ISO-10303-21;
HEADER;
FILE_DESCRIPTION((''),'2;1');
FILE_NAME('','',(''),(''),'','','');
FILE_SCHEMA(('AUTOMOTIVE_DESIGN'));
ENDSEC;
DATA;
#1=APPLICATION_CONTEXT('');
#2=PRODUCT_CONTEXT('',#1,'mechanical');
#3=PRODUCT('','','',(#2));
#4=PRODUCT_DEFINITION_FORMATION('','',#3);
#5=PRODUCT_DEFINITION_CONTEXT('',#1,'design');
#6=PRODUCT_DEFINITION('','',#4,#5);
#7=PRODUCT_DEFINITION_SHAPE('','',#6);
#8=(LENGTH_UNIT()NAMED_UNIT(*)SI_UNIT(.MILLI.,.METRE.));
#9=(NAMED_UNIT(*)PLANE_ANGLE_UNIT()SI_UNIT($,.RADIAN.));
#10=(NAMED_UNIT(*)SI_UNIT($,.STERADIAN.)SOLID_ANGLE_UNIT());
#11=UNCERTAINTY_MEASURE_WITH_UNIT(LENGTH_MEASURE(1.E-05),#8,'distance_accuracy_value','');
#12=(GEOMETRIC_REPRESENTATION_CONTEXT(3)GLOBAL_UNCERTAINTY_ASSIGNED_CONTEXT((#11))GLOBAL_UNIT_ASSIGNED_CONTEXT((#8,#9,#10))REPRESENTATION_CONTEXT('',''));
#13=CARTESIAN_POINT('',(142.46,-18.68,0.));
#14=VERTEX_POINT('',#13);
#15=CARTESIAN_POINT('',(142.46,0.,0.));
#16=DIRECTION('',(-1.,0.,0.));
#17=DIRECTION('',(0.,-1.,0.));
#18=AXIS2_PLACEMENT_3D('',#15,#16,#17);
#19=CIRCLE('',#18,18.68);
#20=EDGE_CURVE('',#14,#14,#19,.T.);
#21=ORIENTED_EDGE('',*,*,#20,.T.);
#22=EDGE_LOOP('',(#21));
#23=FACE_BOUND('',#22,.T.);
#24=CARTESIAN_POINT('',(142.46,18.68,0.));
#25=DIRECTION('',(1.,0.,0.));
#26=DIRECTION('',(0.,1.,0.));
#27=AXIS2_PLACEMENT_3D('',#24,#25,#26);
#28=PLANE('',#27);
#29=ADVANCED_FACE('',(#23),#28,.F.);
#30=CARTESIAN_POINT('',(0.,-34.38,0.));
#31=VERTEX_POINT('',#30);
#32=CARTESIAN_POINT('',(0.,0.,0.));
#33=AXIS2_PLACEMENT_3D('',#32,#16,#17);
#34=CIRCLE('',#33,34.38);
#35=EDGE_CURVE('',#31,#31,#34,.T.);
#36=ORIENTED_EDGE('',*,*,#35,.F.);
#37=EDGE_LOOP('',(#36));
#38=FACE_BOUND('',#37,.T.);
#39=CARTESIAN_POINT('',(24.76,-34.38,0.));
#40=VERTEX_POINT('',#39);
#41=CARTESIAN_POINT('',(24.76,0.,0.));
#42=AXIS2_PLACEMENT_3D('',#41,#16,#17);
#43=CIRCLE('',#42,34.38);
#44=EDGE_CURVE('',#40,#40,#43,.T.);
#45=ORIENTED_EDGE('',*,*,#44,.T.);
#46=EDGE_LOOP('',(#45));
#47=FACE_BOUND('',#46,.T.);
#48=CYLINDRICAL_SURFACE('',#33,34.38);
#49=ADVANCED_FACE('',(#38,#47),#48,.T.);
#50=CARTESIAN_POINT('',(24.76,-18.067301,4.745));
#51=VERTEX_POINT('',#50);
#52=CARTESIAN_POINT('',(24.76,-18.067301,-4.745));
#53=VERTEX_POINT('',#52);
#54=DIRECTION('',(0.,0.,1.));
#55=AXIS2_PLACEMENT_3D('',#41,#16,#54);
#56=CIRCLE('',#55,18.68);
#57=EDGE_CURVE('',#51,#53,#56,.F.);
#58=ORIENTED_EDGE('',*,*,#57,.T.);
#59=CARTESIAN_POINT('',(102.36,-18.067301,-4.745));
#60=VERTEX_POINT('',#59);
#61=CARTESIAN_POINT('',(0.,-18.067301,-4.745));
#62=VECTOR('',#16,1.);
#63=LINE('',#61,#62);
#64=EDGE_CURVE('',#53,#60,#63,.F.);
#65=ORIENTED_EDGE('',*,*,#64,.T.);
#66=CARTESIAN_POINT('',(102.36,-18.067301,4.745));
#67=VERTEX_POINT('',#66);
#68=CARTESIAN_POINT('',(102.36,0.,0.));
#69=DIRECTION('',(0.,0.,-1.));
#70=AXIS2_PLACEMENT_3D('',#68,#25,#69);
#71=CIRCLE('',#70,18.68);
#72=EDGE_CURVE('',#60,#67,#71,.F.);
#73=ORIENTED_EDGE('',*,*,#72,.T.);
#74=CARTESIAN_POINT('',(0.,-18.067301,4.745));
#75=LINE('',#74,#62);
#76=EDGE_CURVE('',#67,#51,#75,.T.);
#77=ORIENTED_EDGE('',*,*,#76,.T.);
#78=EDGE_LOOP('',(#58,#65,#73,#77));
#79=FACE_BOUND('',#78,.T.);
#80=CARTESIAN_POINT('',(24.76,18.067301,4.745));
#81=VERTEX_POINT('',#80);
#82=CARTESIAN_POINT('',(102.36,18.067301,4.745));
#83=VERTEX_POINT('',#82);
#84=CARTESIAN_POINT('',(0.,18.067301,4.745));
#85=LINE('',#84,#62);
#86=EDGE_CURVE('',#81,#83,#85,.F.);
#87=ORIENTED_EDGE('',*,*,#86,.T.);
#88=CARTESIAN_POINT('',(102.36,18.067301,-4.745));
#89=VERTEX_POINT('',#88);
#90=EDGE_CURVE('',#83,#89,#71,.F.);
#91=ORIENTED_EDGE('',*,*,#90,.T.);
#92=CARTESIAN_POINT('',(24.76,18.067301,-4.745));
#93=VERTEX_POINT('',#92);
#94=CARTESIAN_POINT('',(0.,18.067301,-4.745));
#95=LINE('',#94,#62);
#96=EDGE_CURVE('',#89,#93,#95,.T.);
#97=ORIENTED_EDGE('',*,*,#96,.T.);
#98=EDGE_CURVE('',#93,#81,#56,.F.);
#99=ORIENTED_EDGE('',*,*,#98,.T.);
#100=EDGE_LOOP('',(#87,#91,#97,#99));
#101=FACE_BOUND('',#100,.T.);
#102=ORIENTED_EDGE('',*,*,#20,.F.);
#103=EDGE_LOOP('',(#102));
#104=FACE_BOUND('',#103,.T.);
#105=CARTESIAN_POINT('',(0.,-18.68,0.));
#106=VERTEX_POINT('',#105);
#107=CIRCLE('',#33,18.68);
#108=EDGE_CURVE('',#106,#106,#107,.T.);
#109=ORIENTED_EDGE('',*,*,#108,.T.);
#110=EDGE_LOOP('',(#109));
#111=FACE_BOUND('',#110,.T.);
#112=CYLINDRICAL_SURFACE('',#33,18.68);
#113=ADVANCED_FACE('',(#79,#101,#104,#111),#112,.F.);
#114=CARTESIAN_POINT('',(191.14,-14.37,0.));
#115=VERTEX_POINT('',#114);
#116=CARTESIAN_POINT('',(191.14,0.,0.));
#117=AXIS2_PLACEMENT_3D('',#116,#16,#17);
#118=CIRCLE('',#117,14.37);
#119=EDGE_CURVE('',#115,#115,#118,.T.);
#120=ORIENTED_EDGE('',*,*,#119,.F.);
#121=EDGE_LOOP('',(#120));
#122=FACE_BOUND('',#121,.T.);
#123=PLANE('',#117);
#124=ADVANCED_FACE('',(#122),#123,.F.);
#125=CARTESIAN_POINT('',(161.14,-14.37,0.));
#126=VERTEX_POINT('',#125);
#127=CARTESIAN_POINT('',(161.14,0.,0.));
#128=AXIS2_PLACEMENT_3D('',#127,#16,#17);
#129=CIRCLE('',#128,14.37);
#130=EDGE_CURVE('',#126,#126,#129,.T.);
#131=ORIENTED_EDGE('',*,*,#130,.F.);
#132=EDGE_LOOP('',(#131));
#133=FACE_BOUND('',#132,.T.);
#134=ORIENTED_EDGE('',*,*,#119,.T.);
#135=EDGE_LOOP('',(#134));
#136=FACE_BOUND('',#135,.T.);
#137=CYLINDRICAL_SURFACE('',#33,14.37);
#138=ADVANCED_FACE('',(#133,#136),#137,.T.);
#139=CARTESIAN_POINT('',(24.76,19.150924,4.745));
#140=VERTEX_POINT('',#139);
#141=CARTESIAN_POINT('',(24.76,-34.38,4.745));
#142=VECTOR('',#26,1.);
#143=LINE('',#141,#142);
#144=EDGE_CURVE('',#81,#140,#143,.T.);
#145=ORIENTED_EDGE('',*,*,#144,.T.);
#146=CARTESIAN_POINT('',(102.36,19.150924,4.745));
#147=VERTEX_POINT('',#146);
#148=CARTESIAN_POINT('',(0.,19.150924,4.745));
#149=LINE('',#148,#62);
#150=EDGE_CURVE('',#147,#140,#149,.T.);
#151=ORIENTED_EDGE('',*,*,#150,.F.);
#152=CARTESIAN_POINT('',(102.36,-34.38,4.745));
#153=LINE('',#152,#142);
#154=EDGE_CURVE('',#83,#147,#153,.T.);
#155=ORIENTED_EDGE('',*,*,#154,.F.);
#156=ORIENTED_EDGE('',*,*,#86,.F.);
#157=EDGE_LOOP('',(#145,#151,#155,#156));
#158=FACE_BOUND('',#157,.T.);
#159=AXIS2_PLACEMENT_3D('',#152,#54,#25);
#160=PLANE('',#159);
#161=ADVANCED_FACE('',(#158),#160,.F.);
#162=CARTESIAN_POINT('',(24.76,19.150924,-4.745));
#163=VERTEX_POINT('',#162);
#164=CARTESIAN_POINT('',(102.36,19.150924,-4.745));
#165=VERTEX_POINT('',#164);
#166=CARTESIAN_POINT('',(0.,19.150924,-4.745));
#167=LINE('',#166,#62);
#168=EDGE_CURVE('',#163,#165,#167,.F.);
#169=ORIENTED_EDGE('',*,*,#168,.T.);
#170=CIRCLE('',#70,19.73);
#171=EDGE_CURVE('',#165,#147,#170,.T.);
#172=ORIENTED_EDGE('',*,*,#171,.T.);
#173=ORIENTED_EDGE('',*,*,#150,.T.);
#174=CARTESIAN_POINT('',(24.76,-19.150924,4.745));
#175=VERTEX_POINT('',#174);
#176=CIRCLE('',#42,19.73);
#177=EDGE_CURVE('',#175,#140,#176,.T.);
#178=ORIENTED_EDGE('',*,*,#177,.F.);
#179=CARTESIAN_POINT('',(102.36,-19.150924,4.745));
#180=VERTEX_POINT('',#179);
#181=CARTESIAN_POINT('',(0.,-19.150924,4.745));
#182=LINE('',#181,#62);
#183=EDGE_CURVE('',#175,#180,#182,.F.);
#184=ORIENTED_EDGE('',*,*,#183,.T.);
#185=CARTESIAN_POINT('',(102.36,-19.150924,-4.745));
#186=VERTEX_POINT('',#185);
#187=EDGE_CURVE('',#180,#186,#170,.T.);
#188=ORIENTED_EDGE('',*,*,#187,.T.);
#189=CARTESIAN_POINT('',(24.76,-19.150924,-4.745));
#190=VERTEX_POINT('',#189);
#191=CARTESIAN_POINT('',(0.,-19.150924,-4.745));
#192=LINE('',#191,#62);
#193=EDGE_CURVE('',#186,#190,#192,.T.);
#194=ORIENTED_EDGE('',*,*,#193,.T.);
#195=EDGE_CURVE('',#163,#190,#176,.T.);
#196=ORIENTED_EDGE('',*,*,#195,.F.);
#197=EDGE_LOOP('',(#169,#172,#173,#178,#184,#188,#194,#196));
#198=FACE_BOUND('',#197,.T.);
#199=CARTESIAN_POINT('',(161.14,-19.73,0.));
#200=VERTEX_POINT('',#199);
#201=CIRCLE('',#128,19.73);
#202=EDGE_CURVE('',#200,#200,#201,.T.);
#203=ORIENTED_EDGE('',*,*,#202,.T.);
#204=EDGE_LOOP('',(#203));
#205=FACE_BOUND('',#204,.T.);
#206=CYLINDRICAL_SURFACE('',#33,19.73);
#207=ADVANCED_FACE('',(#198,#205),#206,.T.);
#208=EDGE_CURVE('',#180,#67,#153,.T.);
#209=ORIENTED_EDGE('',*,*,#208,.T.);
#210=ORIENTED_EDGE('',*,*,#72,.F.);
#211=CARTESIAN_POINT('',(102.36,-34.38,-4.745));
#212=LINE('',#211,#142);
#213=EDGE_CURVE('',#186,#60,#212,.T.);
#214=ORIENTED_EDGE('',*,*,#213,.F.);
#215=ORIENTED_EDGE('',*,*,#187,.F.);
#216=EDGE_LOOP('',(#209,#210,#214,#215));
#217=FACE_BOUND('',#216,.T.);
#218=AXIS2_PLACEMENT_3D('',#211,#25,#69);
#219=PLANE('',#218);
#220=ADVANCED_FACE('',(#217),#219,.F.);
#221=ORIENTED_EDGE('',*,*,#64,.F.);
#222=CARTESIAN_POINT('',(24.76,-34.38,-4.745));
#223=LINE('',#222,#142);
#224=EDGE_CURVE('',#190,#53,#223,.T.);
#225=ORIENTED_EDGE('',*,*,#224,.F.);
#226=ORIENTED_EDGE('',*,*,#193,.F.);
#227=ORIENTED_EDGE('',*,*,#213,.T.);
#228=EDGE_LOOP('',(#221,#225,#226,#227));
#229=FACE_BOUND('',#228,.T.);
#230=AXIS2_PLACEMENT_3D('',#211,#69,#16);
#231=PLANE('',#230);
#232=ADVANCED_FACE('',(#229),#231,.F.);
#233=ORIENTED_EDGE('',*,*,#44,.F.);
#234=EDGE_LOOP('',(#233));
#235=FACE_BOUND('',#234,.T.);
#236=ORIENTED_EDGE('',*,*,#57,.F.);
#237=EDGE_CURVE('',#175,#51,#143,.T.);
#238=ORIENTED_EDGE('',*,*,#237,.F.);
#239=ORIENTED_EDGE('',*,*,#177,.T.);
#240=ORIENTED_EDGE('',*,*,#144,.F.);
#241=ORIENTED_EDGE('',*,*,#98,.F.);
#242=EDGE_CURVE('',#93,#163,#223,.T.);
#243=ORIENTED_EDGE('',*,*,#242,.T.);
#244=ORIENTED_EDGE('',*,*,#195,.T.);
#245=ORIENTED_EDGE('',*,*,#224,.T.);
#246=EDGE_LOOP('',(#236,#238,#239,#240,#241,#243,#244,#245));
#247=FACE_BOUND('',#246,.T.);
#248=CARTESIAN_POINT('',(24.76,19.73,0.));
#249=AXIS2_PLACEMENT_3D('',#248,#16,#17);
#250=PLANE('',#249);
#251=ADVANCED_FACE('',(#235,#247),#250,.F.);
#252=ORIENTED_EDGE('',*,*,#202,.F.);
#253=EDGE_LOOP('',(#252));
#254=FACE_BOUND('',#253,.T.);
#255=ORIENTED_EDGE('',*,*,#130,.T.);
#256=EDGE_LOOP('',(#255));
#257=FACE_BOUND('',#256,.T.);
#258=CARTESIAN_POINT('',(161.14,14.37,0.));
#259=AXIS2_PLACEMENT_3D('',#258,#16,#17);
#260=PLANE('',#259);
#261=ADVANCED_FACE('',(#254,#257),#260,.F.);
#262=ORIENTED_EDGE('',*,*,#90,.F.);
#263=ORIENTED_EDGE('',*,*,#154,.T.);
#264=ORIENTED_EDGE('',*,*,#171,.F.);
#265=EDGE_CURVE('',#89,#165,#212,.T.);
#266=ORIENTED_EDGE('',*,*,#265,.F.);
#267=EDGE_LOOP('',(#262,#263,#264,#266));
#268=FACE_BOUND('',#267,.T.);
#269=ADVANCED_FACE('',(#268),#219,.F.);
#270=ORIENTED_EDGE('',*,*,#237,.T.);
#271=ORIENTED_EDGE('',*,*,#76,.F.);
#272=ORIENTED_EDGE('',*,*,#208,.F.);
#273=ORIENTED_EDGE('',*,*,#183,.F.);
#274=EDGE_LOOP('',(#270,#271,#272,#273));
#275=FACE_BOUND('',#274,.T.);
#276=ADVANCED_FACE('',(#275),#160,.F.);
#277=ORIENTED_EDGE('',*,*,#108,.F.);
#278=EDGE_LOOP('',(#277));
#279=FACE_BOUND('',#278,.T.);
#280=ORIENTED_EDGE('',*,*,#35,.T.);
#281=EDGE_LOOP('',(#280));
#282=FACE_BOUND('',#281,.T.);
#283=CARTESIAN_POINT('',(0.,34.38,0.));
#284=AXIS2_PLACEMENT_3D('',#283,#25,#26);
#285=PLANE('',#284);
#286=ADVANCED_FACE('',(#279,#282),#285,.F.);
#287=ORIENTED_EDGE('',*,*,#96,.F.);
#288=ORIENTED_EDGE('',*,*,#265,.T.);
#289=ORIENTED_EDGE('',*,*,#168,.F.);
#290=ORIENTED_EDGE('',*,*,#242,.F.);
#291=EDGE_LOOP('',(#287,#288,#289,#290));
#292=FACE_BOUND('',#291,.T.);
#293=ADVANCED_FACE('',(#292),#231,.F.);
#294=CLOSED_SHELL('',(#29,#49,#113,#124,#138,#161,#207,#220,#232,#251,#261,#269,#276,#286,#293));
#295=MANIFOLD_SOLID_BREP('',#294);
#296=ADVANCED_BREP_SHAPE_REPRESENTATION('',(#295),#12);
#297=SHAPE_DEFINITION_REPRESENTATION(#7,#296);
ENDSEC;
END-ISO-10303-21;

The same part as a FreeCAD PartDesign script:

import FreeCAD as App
import Part
import Sketcher
from FreeCAD import Vector


def add_polygon(sketch, points):
    """Adds a closed chain of lines whose ends are joined by coincident constraints."""
    first, n = sketch.GeometryCount, len(points)
    for a, b in zip(points, points[1:] + points[:1]):
        sketch.addGeometry(Part.LineSegment(App.Vector(*a, 0), App.Vector(*b, 0)), False)
    for i in range(n):
        sketch.addConstraint(Sketcher.Constraint("Coincident", first + i, 2, first + (i + 1) % n, 1))

doc = App.newDocument("Part")
body = doc.addObject("PartDesign::Body", "Body")

# Sketch on XY plane
sketch1 = body.newObject("Sketcher::SketchObject", "Sketch")
sketch1.AttachmentSupport = (doc.getObject("XY_Plane"), [""])
sketch1.MapMode = "FlatFace"
add_polygon(sketch1, [(191, 0), (191, 14), (161, 14), (161, 20), (25, 20), (25, 34), (0, 34), (0, 19), (142, 19), (142, 0)])  # lines 0-9
sketch1.addConstraint([
    Sketcher.Constraint("Vertical", 0),
    Sketcher.Constraint("Horizontal", 1),
    Sketcher.Constraint("Vertical", 2),
    Sketcher.Constraint("Horizontal", 3),
    Sketcher.Constraint("Vertical", 4),
    Sketcher.Constraint("Horizontal", 5),
    Sketcher.Constraint("Vertical", 6),
    Sketcher.Constraint("Horizontal", 7),
    Sketcher.Constraint("Vertical", 8),
    Sketcher.Constraint("Horizontal", 9),
    Sketcher.Constraint("PointOnObject", 5, 2, -2),
    Sketcher.Constraint("PointOnObject", 8, 2, -1),
    Sketcher.Constraint("DistanceX", 1, 2, 1, 1, 30.0),
    Sketcher.Constraint("DistanceY", 6, 2, 6, 1, 15.7),
    Sketcher.Constraint("DistanceX", 3, 2, 3, 1, 136.38),
    Sketcher.Constraint("DistanceX", 5, 2, 5, 1, 24.76),
    Sketcher.Constraint("DistanceX", 7, 1, 7, 2, 142.46),
    Sketcher.Constraint("DistanceY", 0, 1, 0, 2, 14.37),
    Sketcher.Constraint("DistanceY", 2, 1, 2, 2, 5.36),
    Sketcher.Constraint("DistanceY", 4, 1, 4, 2, 14.65),
])
revolution = body.newObject("PartDesign::Revolution", "Revolution")
revolution.Profile = sketch1
revolution.ReferenceAxis = (sketch1, ["H_Axis"])
revolution.Angle = 360

# Sketch on XZ plane
sketch2 = body.newObject("Sketcher::SketchObject", "Sketch001")
sketch2.AttachmentSupport = (doc.getObject("XZ_Plane"), [""])
sketch2.MapMode = "FlatFace"
add_polygon(sketch2, [(25, -5), (25, 5), (102, 5), (102, -5)])  # lines 0-3
sketch2.addConstraint([
    Sketcher.Constraint("Vertical", 0),
    Sketcher.Constraint("Horizontal", 1),
    Sketcher.Constraint("Vertical", 2),
    Sketcher.Constraint("Horizontal", 3),
    Sketcher.Constraint("DistanceX", 1, 1, 1, 2, 77.6),
    Sketcher.Constraint("DistanceY", 0, 1, 0, 2, 9.49),
    Sketcher.Constraint("DistanceX", -1, 1, 0, 2, 24.76),
    Sketcher.Constraint("DistanceY", -1, 1, 0, 2, 4.745),
])
pocket1 = body.newObject("PartDesign::Pocket", "Pocket")
pocket1.Profile = sketch2
pocket1.Type = "ThroughAll"
pocket1.Midplane = True

doc.recompute()
